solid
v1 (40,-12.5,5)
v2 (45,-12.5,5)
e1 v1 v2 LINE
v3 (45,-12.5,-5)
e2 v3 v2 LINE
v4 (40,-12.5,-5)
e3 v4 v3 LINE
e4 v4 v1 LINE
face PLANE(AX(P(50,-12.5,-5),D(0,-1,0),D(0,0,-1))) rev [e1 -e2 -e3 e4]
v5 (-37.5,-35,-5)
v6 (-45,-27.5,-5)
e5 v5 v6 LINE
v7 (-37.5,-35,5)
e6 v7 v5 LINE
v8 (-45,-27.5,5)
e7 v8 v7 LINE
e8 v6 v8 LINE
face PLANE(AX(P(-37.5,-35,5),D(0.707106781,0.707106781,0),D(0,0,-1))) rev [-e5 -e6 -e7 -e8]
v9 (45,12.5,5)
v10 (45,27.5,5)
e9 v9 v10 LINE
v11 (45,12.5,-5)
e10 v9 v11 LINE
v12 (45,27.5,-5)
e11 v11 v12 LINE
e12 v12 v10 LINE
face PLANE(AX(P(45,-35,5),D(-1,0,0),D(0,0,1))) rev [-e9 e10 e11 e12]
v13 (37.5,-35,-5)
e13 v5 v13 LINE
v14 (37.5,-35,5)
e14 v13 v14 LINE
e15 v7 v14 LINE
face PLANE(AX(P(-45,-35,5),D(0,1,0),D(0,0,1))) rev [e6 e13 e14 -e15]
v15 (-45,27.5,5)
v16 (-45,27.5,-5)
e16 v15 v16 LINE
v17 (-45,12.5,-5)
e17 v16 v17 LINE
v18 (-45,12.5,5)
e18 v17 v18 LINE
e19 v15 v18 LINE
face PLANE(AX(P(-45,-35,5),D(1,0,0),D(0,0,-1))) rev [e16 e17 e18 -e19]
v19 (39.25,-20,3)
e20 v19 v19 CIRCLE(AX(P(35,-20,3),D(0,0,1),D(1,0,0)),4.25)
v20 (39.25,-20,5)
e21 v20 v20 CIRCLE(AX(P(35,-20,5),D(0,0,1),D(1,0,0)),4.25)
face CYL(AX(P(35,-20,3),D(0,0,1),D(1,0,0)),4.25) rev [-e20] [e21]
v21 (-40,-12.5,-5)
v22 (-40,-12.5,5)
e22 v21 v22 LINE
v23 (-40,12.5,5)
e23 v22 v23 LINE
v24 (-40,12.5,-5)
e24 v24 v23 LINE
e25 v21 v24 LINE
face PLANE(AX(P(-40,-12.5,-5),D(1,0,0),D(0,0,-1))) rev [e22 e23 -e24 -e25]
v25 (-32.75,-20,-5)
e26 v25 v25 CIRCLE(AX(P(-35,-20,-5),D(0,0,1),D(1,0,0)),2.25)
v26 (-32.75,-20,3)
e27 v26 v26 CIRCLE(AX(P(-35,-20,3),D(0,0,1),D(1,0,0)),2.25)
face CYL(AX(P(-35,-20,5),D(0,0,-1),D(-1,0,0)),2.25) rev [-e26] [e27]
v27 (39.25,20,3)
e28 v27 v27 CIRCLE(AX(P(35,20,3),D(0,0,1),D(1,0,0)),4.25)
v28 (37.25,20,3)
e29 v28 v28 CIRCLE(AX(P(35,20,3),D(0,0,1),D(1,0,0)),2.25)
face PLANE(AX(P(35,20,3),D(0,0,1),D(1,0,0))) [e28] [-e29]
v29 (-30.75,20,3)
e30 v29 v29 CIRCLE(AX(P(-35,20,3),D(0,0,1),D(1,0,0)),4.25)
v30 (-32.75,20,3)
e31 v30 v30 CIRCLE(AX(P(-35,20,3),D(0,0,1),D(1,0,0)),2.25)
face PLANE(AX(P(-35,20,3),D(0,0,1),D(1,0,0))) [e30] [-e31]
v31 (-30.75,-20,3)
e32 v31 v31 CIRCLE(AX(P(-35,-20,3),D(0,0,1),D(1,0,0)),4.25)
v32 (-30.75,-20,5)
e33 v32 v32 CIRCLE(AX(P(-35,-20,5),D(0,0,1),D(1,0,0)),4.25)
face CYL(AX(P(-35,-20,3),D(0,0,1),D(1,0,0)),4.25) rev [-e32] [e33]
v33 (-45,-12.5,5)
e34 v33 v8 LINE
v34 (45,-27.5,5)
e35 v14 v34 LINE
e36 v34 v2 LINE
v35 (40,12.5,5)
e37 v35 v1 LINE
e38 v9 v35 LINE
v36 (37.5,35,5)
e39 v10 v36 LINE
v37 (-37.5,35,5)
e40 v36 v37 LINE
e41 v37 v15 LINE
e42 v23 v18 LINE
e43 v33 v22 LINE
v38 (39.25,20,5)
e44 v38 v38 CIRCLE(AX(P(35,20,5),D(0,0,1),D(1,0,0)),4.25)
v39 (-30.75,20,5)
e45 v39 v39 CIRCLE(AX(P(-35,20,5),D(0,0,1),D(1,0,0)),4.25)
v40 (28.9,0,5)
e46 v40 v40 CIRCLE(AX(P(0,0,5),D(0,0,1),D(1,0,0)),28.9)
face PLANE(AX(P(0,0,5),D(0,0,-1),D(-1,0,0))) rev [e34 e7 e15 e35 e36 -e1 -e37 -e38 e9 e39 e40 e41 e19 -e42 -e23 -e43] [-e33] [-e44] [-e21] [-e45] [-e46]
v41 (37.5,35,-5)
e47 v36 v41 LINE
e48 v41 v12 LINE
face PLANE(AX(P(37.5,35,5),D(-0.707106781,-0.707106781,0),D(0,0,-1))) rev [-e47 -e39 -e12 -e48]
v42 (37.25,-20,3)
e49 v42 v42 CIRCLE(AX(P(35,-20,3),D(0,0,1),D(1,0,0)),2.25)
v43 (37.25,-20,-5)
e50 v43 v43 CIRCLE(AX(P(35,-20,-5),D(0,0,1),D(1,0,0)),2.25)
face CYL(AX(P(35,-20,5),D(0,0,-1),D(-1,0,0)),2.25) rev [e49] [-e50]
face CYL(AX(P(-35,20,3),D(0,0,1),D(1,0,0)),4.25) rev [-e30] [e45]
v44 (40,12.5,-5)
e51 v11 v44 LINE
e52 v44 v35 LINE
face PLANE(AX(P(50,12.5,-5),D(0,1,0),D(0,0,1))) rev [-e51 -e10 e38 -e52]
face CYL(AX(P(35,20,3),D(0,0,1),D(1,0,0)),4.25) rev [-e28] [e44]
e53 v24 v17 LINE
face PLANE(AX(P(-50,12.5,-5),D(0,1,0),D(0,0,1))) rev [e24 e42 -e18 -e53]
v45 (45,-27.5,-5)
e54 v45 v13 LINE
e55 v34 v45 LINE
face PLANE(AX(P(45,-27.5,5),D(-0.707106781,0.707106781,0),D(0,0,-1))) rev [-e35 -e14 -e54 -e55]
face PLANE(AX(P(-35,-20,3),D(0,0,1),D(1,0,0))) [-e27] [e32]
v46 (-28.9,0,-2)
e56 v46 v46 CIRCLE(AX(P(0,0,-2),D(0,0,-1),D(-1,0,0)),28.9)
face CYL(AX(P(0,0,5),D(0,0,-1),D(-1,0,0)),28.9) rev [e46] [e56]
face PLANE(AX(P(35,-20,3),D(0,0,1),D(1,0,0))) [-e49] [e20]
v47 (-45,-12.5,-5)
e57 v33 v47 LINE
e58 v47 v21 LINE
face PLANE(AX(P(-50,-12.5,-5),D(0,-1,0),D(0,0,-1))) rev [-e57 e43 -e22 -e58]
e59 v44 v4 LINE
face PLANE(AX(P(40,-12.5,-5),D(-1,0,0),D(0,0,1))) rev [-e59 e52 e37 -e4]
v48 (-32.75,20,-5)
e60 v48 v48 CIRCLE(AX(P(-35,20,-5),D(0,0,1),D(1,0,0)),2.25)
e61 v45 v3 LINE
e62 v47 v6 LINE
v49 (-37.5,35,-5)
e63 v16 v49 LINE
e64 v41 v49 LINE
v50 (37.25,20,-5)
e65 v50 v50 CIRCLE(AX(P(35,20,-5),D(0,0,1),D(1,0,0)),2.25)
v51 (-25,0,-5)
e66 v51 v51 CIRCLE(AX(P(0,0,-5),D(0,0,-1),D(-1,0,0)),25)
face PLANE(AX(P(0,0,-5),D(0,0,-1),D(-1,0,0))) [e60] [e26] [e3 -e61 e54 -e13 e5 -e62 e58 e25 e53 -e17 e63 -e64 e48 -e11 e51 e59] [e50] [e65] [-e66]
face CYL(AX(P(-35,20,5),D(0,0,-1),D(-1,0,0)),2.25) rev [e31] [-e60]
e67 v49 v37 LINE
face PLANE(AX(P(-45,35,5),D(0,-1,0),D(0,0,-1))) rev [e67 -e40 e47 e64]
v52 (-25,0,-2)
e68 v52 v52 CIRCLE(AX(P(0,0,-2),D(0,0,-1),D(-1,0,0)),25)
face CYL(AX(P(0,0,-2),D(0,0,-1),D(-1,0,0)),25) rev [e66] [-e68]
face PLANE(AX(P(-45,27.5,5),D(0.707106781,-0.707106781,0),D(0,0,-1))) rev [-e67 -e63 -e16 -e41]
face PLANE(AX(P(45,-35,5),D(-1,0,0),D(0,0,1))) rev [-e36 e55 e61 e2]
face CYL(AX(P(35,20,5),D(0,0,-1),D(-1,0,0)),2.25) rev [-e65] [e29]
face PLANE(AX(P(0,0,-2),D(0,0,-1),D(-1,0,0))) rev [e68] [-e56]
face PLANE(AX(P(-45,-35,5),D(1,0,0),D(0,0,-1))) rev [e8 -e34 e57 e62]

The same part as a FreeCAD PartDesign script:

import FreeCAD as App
import Part
import Sketcher
Q = App.Units.Quantity


def edges_at(feature, points):
    """Names of the edges that pass closest to the given points."""
    edges = feature.Shape.Edges
    near = lambda p: min(range(len(edges)), key=lambda i: edges[i].distToShape(Part.Vertex(*p))[0])
    return sorted({f"Edge{near(p) + 1}" for p in points})

doc = App.newDocument("Part")
params = doc.addObject("Spreadsheet::Sheet", "Params")
for row, (alias, value) in enumerate([
    ("sketch1_diameter", "4.5 mm"),
    ("sketch1_diameter2", "57.8 mm"),
    ("sketch1_width", "90 mm"),
    ("sketch1_height", "70 mm"),
    ("pad1_length", "10 mm"),
    ("sketch2_diameter", "50 mm"),
    ("sketch2_diameter2", "57.8 mm"),
    ("pad2_length", "3 mm"),
    ("sketch3_diameter", "8.5 mm"),
    ("pocket1_length", "2 mm"),
    ("sketch4_width", "10 mm"),
    ("sketch4_height", "25 mm"),
    ("chamfer_size", "7.5 mm"),
], start=1):
    params.set(f"A{row}", alias)
    params.set(f"B{row}", "=" + value)
    params.setAlias(f"B{row}", alias)

body = doc.addObject("PartDesign::Body", "Body")

# Sketch on XY plane
sketch1 = body.newObject("Sketcher::SketchObject", "Sketch")
sketch1.AttachmentSupport = (doc.getObject("XY_Plane"), [""])
sketch1.MapMode = "FlatFace"
sketch1.addGeometry([
    Part.LineSegment(App.Vector(-45, 35, 0), App.Vector(-45, -35, 0)),  # 0
    Part.LineSegment(App.Vector(-45, -35, 0), App.Vector(45, -35, 0)),  # 1
    Part.LineSegment(App.Vector(45, -35, 0), App.Vector(45, 35, 0)),  # 2
    Part.LineSegment(App.Vector(45, 35, 0), App.Vector(-45, 35, 0)),  # 3
    Part.Circle(App.Vector(-35, -20, 0), App.Vector(0, 0, 1), 2.2),  # 4
    Part.Circle(App.Vector(35, -20, 0), App.Vector(0, 0, 1), 2.2),  # 5
    Part.Circle(App.Vector(-35, 20, 0), App.Vector(0, 0, 1), 2.2),  # 6
    Part.Circle(App.Vector(0, 0, 0), App.Vector(0, 0, 1), 28.9),  # 7
    Part.Circle(App.Vector(35, 20, 0), App.Vector(0, 0, 1), 2.2),  # 8
], False)
sketch1.addConstraint([
    Sketcher.Constraint("Coincident", 0, 2, 1, 1),
    Sketcher.Constraint("Coincident", 1, 2, 2, 1),
    Sketcher.Constraint("Coincident", 2, 2, 3, 1),
    Sketcher.Constraint("Coincident", 3, 2, 0, 1),
    Sketcher.Constraint("Vertical", 0),
    Sketcher.Constraint("Horizontal", 1),
    Sketcher.Constraint("Vertical", 2),
    Sketcher.Constraint("Horizontal", 3),
    Sketcher.Constraint("Coincident", 7, 3, -1, 1),
    Sketcher.Constraint("Equal", 4, 5),
    Sketcher.Constraint("Equal", 5, 6),
    Sketcher.Constraint("Equal", 6, 8),
    Sketcher.Constraint("Symmetric", 5, 3, 6, 3, -1, 1),
    Sketcher.Constraint("Symmetric", 4, 3, 8, 3, -1, 1),
    Sketcher.Constraint("Symmetric", 0, 2, 2, 2, -1, 1),
    Sketcher.Constraint("Symmetric", 4, 3, 5, 3, -2),
    Sketcher.Constraint("Diameter", 4, Q("4.5 mm")),
    Sketcher.Constraint("Diameter", 7, Q("57.8 mm")),
    Sketcher.Constraint("DistanceX", 1, 1, 1, 2, Q("90 mm")),
    Sketcher.Constraint("DistanceY", 0, 2, 0, 1, Q("70 mm")),
    Sketcher.Constraint("DistanceX", 4, 3, -1, 1, Q("35 mm")),
    Sketcher.Constraint("DistanceY", 4, 3, -1, 1, Q("20 mm")),
])
sketch1.setExpression("Constraints[16]", "Params.sketch1_diameter")
sketch1.setExpression("Constraints[17]", "Params.sketch1_diameter2")
sketch1.setExpression("Constraints[18]", "Params.sketch1_width")
sketch1.setExpression("Constraints[19]", "Params.sketch1_height")
pad1 = body.newObject("PartDesign::Pad", "Pad")
pad1.Profile = sketch1
pad1.setExpression("Length", "Params.pad1_length")
pad1.Midplane = True

# Sketch on XY plane
sketch2 = body.newObject("Sketcher::SketchObject", "Sketch001")
sketch2.AttachmentSupport = (doc.getObject("XY_Plane"), [""])
sketch2.MapMode = "FlatFace"
sketch2.AttachmentOffset = App.Placement(App.Vector(0, 0, -5), App.Rotation())
sketch2.addGeometry([
    Part.Circle(App.Vector(0, 0, 0), App.Vector(0, 0, 1), 29),
    Part.Circle(App.Vector(0, 0, 0), App.Vector(0, 0, 1), 25),
], False)
sketch2.addConstraint([
    Sketcher.Constraint("Coincident", 0, 3, -1, 1),
    Sketcher.Constraint("Coincident", 1, 3, -1, 1),
    Sketcher.Constraint("Diameter", 1, Q("50 mm")),
    Sketcher.Constraint("Diameter", 0, Q("57.8 mm")),
])
sketch2.setExpression("Constraints[2]", "Params.sketch2_diameter")
sketch2.setExpression("Constraints[3]", "Params.sketch2_diameter2")
pad2 = body.newObject("PartDesign::Pad", "Pad001")
pad2.Profile = sketch2
pad2.setExpression("Length", "Params.pad2_length")

# Sketch on XY plane
sketch3 = body.newObject("Sketcher::SketchObject", "Sketch002")
sketch3.AttachmentSupport = (doc.getObject("XY_Plane"), [""])
sketch3.MapMode = "FlatFace"
sketch3.AttachmentOffset = App.Placement(App.Vector(0, 0, 5), App.Rotation())
sketch3.addGeometry([
    Part.Circle(App.Vector(-35, 20, 0), App.Vector(0, 0, 1), 4.2),
    Part.Circle(App.Vector(35, 20, 0), App.Vector(0, 0, 1), 4.2),
    Part.Circle(App.Vector(35, -20, 0), App.Vector(0, 0, 1), 4.2),
    Part.Circle(App.Vector(-35, -20, 0), App.Vector(0, 0, 1), 4.2),
], False)
sketch3.addConstraint([
    Sketcher.Constraint("Equal", 0, 1),
    Sketcher.Constraint("Equal", 1, 2),
    Sketcher.Constraint("Equal", 2, 3),
    Sketcher.Constraint("Symmetric", 0, 3, 2, 3, -1, 1),
    Sketcher.Constraint("Symmetric", 1, 3, 3, 3, -1, 1),
    Sketcher.Constraint("Symmetric", 0, 3, 1, 3, -2),
    Sketcher.Constraint("Diameter", 0, Q("8.5 mm")),
    Sketcher.Constraint("DistanceX", 0, 3, -1, 1, Q("35 mm")),
    Sketcher.Constraint("DistanceY", -1, 1, 0, 3, Q("20 mm")),
])
sketch3.setExpression("Constraints[6]", "Params.sketch3_diameter")
pocket1 = body.newObject("PartDesign::Pocket", "Pocket")
pocket1.Profile = sketch3
pocket1.setExpression("Length", "Params.pocket1_length")

# Sketch on XY plane
sketch4 = body.newObject("Sketcher::SketchObject", "Sketch003")
sketch4.AttachmentSupport = (doc.getObject("XY_Plane"), [""])
sketch4.MapMode = "FlatFace"
sketch4.AttachmentOffset = App.Placement(App.Vector(0, 0, 5), App.Rotation())
sketch4.addGeometry([
    Part.LineSegment(App.Vector(-50, 12, 0), App.Vector(-50, -12, 0)),  # 0
    Part.LineSegment(App.Vector(-50, -12, 0), App.Vector(-40, -12, 0)),  # 1
    Part.LineSegment(App.Vector(-40, -12, 0), App.Vector(-40, 12, 0)),  # 2
    Part.LineSegment(App.Vector(-40, 12, 0), App.Vector(-50, 12, 0)),  # 3
    Part.LineSegment(App.Vector(40, 12, 0), App.Vector(40, -12, 0)),  # 4
    Part.LineSegment(App.Vector(40, -12, 0), App.Vector(50, -12, 0)),  # 5
    Part.LineSegment(App.Vector(50, -12, 0), App.Vector(50, 12, 0)),  # 6
    Part.LineSegment(App.Vector(50, 12, 0), App.Vector(40, 12, 0)),  # 7
], False)
sketch4.addConstraint([
    Sketcher.Constraint("Coincident", 0, 2, 1, 1),
    Sketcher.Constraint("Coincident", 1, 2, 2, 1),
    Sketcher.Constraint("Coincident", 2, 2, 3, 1),
    Sketcher.Constraint("Coincident", 3, 2, 0, 1),
    Sketcher.Constraint("Coincident", 4, 2, 5, 1),
    Sketcher.Constraint("Coincident", 5, 2, 6, 1),
    Sketcher.Constraint("Coincident", 6, 2, 7, 1),
    Sketcher.Constraint("Coincident", 7, 2, 4, 1),
    Sketcher.Constraint("Vertical", 0),
    Sketcher.Constraint("Horizontal", 1),
    Sketcher.Constraint("Vertical", 2),
    Sketcher.Constraint("Horizontal", 3),
    Sketcher.Constraint("Vertical", 4),
    Sketcher.Constraint("Horizontal", 5),
    Sketcher.Constraint("Vertical", 6),
    Sketcher.Constraint("Horizontal", 7),
    Sketcher.Constraint("Symmetric", 2, 2, 4, 2, -1, 1),
    Sketcher.Constraint("Symmetric", 0, 2, 6, 2, -1, 1),
    Sketcher.Constraint("Horizontal", 1, 2, 4, 2),
    Sketcher.Constraint("DistanceX", 1, 1, 1, 2, Q("10 mm")),
    Sketcher.Constraint("DistanceY", 0, 2, 0, 1, Q("25 mm")),
    Sketcher.Constraint("DistanceX", 0, 2, -1, 1, Q("50 mm")),
])
sketch4.setExpression("Constraints[19]", "Params.sketch4_width")
sketch4.setExpression("Constraints[20]", "Params.sketch4_height")
pocket2 = body.newObject("PartDesign::Pocket", "Pocket001")
pocket2.Profile = sketch4
pocket2.Type = "ThroughAll"
doc.recompute()

chamfer = body.newObject("PartDesign::Chamfer", "Chamfer")
chamfer.Base = (pocket2, edges_at(pocket2, [
    (45, -35, 0),
    (-45, -35, 0),
    (-45, 35, 0),
    (45, 35, 0),
]))
chamfer.setExpression("Size", "Params.chamfer_size")

doc.recompute()
